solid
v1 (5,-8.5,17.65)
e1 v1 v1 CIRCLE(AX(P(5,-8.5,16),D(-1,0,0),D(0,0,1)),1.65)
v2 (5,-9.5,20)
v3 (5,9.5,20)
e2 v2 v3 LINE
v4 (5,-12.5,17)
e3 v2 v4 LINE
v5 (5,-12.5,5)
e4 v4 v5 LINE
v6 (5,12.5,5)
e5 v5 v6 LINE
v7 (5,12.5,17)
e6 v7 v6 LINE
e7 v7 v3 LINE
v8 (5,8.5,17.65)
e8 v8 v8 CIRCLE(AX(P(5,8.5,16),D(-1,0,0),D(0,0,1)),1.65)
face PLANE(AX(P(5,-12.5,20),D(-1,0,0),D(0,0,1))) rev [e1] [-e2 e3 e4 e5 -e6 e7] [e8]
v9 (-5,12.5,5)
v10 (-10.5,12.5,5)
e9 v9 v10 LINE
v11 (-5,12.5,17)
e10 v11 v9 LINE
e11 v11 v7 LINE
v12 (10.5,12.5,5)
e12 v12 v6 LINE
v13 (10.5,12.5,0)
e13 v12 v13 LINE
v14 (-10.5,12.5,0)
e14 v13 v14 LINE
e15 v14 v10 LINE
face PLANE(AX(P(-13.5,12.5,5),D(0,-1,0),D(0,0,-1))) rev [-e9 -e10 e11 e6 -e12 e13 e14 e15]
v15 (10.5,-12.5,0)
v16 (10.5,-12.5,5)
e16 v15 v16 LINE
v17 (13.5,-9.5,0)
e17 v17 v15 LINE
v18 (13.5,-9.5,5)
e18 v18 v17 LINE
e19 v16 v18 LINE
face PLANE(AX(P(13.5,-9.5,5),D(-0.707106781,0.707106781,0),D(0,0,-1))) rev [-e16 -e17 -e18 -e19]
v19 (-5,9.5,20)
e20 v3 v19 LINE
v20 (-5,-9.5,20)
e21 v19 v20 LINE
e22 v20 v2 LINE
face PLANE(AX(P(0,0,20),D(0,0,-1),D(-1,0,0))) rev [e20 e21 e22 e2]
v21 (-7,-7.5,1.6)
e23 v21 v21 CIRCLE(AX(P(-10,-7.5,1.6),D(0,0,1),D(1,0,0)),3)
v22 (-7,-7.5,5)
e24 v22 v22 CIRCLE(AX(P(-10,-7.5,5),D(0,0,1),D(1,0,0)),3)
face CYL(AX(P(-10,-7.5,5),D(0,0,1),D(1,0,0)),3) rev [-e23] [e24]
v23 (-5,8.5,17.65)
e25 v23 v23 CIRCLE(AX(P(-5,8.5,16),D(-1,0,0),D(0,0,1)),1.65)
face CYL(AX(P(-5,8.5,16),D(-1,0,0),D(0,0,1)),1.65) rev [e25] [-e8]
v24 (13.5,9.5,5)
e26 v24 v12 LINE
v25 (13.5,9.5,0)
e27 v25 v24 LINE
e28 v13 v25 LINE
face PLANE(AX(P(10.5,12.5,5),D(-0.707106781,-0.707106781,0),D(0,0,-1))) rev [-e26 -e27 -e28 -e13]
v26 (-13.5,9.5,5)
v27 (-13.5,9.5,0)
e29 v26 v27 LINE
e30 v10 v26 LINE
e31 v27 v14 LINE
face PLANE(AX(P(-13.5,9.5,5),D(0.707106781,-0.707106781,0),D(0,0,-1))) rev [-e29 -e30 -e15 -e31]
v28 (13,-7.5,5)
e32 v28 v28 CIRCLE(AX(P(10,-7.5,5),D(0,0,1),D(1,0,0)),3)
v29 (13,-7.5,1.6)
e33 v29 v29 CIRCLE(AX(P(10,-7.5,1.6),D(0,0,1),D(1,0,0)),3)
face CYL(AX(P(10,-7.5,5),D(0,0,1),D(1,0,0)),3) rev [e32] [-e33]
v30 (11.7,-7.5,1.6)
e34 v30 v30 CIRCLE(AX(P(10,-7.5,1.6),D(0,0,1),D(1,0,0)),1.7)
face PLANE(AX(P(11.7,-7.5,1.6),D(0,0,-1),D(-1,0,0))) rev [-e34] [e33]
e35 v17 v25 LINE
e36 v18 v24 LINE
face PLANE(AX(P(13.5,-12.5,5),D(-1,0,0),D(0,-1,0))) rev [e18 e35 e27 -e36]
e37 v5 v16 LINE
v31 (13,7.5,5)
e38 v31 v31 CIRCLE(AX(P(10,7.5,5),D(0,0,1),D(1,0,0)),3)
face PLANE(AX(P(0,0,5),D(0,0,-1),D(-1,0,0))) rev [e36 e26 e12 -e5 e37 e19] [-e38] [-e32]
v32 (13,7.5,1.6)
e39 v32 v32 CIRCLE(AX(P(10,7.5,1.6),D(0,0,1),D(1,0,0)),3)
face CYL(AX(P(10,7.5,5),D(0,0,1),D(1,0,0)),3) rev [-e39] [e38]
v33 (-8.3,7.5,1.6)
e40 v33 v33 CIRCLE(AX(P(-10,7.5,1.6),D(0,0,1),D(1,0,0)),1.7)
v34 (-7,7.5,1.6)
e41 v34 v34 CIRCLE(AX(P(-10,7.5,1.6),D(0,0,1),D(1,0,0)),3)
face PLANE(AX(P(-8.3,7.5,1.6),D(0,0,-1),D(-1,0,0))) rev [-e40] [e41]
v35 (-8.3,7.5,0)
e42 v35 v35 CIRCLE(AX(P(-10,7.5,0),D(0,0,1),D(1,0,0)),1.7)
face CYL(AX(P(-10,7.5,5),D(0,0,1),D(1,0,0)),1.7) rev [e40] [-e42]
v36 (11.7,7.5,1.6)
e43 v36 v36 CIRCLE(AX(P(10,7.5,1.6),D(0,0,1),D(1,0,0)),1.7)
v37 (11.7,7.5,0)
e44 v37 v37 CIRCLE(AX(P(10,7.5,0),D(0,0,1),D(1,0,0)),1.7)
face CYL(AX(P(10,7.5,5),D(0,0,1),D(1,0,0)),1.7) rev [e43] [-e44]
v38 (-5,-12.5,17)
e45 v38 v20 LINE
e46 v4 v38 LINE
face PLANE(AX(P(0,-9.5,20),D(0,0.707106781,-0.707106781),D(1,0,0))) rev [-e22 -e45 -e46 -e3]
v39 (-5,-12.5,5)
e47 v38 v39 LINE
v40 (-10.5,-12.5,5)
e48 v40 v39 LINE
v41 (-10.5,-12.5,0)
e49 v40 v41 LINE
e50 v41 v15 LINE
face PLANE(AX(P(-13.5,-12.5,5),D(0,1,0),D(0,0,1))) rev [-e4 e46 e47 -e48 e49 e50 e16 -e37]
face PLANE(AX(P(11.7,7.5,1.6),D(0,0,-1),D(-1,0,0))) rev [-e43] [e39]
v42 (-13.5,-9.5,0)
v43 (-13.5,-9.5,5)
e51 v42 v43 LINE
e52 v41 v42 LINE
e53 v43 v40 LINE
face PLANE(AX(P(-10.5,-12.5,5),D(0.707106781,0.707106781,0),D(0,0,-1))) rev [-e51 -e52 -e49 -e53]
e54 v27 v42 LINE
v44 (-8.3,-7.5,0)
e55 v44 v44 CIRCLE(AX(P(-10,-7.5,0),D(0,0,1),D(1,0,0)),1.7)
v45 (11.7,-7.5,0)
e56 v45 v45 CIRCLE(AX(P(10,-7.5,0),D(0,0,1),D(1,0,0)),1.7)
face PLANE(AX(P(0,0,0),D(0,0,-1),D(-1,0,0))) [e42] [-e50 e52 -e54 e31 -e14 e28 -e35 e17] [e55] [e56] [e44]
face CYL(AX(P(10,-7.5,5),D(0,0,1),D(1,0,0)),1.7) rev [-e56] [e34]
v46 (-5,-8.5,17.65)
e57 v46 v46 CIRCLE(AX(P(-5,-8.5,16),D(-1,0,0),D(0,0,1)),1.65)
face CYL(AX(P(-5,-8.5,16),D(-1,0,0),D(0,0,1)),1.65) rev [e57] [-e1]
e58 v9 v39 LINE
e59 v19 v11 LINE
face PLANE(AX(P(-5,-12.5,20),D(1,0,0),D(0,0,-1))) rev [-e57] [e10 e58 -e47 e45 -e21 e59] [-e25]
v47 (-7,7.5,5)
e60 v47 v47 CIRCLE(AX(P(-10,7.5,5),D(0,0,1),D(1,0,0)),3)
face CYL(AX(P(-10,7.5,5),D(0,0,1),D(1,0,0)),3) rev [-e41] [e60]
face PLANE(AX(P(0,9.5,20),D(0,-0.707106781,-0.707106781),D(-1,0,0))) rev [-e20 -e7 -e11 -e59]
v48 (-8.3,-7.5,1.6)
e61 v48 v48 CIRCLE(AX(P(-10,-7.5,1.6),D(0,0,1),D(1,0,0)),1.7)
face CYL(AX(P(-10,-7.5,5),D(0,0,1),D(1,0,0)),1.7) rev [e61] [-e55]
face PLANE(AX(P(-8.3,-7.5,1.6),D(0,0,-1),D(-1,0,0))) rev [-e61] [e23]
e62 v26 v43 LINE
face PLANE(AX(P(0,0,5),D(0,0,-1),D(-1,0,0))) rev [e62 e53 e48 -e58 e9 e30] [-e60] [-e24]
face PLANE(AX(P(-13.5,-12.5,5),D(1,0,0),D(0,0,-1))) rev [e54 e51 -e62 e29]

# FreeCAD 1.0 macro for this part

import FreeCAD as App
import Part
import Sketcher
from FreeCAD import Vector


def edges_at(feature, points):
    """Names of the edges that pass closest to the given points."""
    edges = feature.Shape.Edges
    near = lambda p: min(range(len(edges)), key=lambda i: edges[i].distToShape(Part.Vertex(*p))[0])
    return sorted({f"Edge{near(p) + 1}" for p in points})


def add_polygon(sketch, points):
    """Adds a closed chain of lines whose ends are joined by coincident constraints."""
    first, n = sketch.GeometryCount, len(points)
    for a, b in zip(points, points[1:] + points[:1]):
        sketch.addGeometry(Part.LineSegment(App.Vector(*a, 0), App.Vector(*b, 0)), False)
    for i in range(n):
        sketch.addConstraint(Sketcher.Constraint("Coincident", first + i, 2, first + (i + 1) % n, 1))

doc = App.newDocument("Part")
body = doc.addObject("PartDesign::Body", "Body")

# Sketch on XY plane
sketch1 = body.newObject("Sketcher::SketchObject", "Sketch")
sketch1.AttachmentSupport = (doc.getObject("XY_Plane"), [""])
sketch1.MapMode = "FlatFace"
add_polygon(sketch1, [(-13.5, 12.5), (-13.5, -12.5), (13.5, -12.5), (13.5, 12.5)])  # lines 0-3
sketch1.addConstraint([
    Sketcher.Constraint("Vertical", 0),
    Sketcher.Constraint("Horizontal", 1),
    Sketcher.Constraint("Vertical", 2),
    Sketcher.Constraint("Horizontal", 3),
    Sketcher.Constraint("Symmetric", 0, 2, 2, 2, -1, 1),
    Sketcher.Constraint("DistanceX", 1, 1, 1, 2, 27.0),
    Sketcher.Constraint("DistanceY", 0, 2, 0, 1, 25.0),
])
pad1 = body.newObject("PartDesign::Pad", "Pad")
pad1.Profile = sketch1
pad1.Length = 5

# Sketch on XY plane
sketch2 = body.newObject("Sketcher::SketchObject", "Sketch001")
sketch2.AttachmentSupport = (doc.getObject("XY_Plane"), [""])
sketch2.MapMode = "FlatFace"
sketch2.AttachmentOffset = App.Placement(Vector(0, 0, 5), App.Rotation())
add_polygon(sketch2, [(-5, 12.5), (-5, -12.5), (5, -12.5), (5, 12.5)])  # lines 0-3
sketch2.addConstraint([
    Sketcher.Constraint("Vertical", 0),
    Sketcher.Constraint("Horizontal", 1),
    Sketcher.Constraint("Vertical", 2),
    Sketcher.Constraint("Horizontal", 3),
    Sketcher.Constraint("Symmetric", 0, 2, 2, 2, -1, 1),
    Sketcher.Constraint("DistanceX", 1, 1, 1, 2, 10.0),
    Sketcher.Constraint("DistanceY", 0, 2, 0, 1, 25.0),
])
pad2 = body.newObject("PartDesign::Pad", "Pad001")
pad2.Profile = sketch2
pad2.Length = 15

# Sketch on XY plane
sketch3 = body.newObject("Sketcher::SketchObject", "Sketch002")
sketch3.AttachmentSupport = (doc.getObject("XY_Plane"), [""])
sketch3.MapMode = "FlatFace"
sketch3.AttachmentOffset = App.Placement(Vector(0, 0, 5), App.Rotation())
sketch3.addGeometry([
    Part.Circle(Vector(10, 7.5, 0), Vector(0, 0, 1), 1.7),
    Part.Circle(Vector(10, -7.5, 0), Vector(0, 0, 1), 1.7),
    Part.Circle(Vector(-10, -7.5, 0), Vector(0, 0, 1), 1.7),
    Part.Circle(Vector(-10, 7.5, 0), Vector(0, 0, 1), 1.7),
], False)
sketch3.addConstraint([
    Sketcher.Constraint("Equal", 0, 1),
    Sketcher.Constraint("Equal", 1, 2),
    Sketcher.Constraint("Equal", 2, 3),
    Sketcher.Constraint("Symmetric", 0, 3, 2, 3, -1, 1),
    Sketcher.Constraint("Symmetric", 1, 3, 3, 3, -1, 1),
    Sketcher.Constraint("Symmetric", 1, 3, 2, 3, -2),
    Sketcher.Constraint("Diameter", 0, 3.4),
    Sketcher.Constraint("DistanceX", -1, 1, 0, 3, 10.0),
    Sketcher.Constraint("DistanceY", 1, 3, 0, 3, 15.0),
])
doc.recompute()
hole = body.newObject("PartDesign::Hole", "Hole")
hole.Profile = sketch3
hole.ThreadType = "None"
hole.Diameter = 3.4
hole.DepthType = "ThroughAll"
hole.HoleCutType = "Counterbore"
hole.HoleCutDiameter = 6
hole.HoleCutDepth = 3.4

# Sketch on YZ plane
sketch4 = body.newObject("Sketcher::SketchObject", "Sketch003")
sketch4.AttachmentSupport = (doc.getObject("YZ_Plane"), [""])
sketch4.MapMode = "FlatFace"
sketch4.AttachmentOffset = App.Placement(Vector(0, 0, -5), App.Rotation())
sketch4.addGeometry([
    Part.Circle(Vector(8.5, 16, 0), Vector(0, 0, 1), 1.65),
    Part.Circle(Vector(-8.5, 16, 0), Vector(0, 0, 1), 1.65),
], False)
sketch4.addConstraint([
    Sketcher.Constraint("Equal", 0, 1),
    Sketcher.Constraint("Symmetric", 0, 3, 1, 3, -2),
    Sketcher.Constraint("Diameter", 0, 3.3),
    Sketcher.Constraint("DistanceY", -1, 1, 0, 3, 16.0),
    Sketcher.Constraint("DistanceX", 1, 3, 0, 3, 17.0),
])
doc.recompute()
hole2 = body.newObject("PartDesign::Hole", "Hole001")
hole2.Profile = sketch4
hole2.ThreadType = "None"
hole2.Diameter = 3.3
hole2.DepthType = "ThroughAll"
hole2.Reversed = True
doc.recompute()

chamfer = body.newObject("PartDesign::Chamfer", "Chamfer")
chamfer.Base = (hole2, edges_at(hole2, [
    (0, 12.5, 20),
    (0, -12.5, 20),
    (13.5, -12.5, 2.5),
    (-13.5, -12.5, 2.5),
    (-13.5, 12.5, 2.5),
    (13.5, 12.5, 2.5),
]))
chamfer.Size = 3

doc.recompute()
